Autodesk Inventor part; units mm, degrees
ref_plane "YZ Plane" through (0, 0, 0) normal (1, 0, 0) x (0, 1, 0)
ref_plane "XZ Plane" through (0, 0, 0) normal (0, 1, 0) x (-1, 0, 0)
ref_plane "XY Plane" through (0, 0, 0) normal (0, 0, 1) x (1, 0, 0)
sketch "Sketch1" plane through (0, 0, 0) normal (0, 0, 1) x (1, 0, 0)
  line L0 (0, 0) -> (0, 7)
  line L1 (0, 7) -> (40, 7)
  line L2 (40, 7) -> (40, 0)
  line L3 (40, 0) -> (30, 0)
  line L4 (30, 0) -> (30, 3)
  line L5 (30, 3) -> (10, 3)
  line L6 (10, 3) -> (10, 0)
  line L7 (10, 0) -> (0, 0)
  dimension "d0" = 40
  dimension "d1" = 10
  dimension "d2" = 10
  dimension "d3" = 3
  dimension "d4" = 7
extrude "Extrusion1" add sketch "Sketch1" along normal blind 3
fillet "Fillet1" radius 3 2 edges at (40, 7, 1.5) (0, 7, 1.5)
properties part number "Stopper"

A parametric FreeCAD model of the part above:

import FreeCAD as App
import Part
import Sketcher

V = App.Vector
Q = App.Units.Quantity


def edges_at(feature, points):
    """Names of the edges that pass closest to the given points."""
    edges = feature.Shape.Edges
    near = lambda p: min(range(len(edges)), key=lambda i: edges[i].distToShape(Part.Vertex(*p))[0])
    return sorted({f"Edge{near(p) + 1}" for p in points})

doc = App.newDocument("Part")
body = doc.addObject("PartDesign::Body", "Body")

sketch1 = body.newObject("Sketcher::SketchObject", "Sketch")
sketch1.AttachmentSupport = (doc.getObject("XY_Plane"), [""])
sketch1.MapMode = "FlatFace"
sketch1.addGeometry([
    Part.LineSegment(V(0, 7, 0), V(0, 0, 0)),
    Part.LineSegment(V(0, 0, 0), V(10, 0, 0)),
    Part.LineSegment(V(10, 0, 0), V(10, 3, 0)),
    Part.LineSegment(V(10, 3, 0), V(30, 3, 0)),
    Part.LineSegment(V(30, 3, 0), V(30, 0, 0)),
    Part.LineSegment(V(30, 0, 0), V(40, 0, 0)),
    Part.LineSegment(V(40, 0, 0), V(40, 7, 0)),
    Part.LineSegment(V(40, 7, 0), V(0, 7, 0)),
], False)
sketch1.addConstraint([
    Sketcher.Constraint("Coincident", 0, 2, 1, 1),
    Sketcher.Constraint("Coincident", 1, 2, 2, 1),
    Sketcher.Constraint("Coincident", 2, 2, 3, 1),
    Sketcher.Constraint("Coincident", 3, 2, 4, 1),
    Sketcher.Constraint("Coincident", 4, 2, 5, 1),
    Sketcher.Constraint("Coincident", 5, 2, 6, 1),
    Sketcher.Constraint("Coincident", 6, 2, 7, 1),
    Sketcher.Constraint("Coincident", 7, 2, 0, 1),
    Sketcher.Constraint("Vertical", 0),
    Sketcher.Constraint("Horizontal", 1),
    Sketcher.Constraint("Vertical", 2),
    Sketcher.Constraint("Horizontal", 3),
    Sketcher.Constraint("Vertical", 4),
    Sketcher.Constraint("Horizontal", 5),
    Sketcher.Constraint("Vertical", 6),
    Sketcher.Constraint("Horizontal", 7),
    Sketcher.Constraint("Coincident", 0, 2, -1, 1),
    Sketcher.Constraint("PointOnObject", 4, 2, -1),
    Sketcher.Constraint("Equal", 1, 5),
    Sketcher.Constraint("DistanceX", 1, 1, 1, 2, Q("10 mm")),
    Sketcher.Constraint("DistanceX", 7, 2, 7, 1, Q("40 mm")),
    Sketcher.Constraint("DistanceY", 0, 2, 0, 1, Q("7 mm")),
    Sketcher.Constraint("DistanceY", 2, 1, 2, 2, Q("3 mm")),
])
pad1 = body.newObject("PartDesign::Pad", "Pad")
pad1.Profile = sketch1
pad1.Length = 3
doc.recompute()

fillet = body.newObject("PartDesign::Fillet", "Fillet")
fillet.Base = (pad1, edges_at(pad1, [(40, 7, 1.5), (0, 7, 1.5)]))
fillet.Radius = 3

doc.recompute()
